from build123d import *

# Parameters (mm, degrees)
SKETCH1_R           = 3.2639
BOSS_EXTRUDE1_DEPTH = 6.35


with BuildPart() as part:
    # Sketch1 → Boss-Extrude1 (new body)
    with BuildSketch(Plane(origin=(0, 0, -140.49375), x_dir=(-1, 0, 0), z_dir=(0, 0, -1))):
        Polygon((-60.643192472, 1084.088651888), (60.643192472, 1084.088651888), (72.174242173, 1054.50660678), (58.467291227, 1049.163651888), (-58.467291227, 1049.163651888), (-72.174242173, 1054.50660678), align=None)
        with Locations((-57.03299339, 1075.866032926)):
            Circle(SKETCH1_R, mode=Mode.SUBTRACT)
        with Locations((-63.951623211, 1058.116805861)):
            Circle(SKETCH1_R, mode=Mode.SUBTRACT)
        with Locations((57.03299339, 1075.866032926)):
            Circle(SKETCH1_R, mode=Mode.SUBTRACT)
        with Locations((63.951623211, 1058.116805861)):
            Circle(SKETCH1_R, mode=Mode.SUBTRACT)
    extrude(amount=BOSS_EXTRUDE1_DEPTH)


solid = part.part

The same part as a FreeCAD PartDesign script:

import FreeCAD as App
import Part
import Sketcher
Q = App.Units.Quantity


def add_polygon(sketch, points):
    """Adds a closed chain of lines whose ends are joined by coincident constraints."""
    first, n = sketch.GeometryCount, len(points)
    for a, b in zip(points, points[1:] + points[:1]):
        sketch.addGeometry(Part.LineSegment(App.Vector(*a, 0), App.Vector(*b, 0)), False)
    for i in range(n):
        sketch.addConstraint(Sketcher.Constraint("Coincident", first + i, 2, first + (i + 1) % n, 1))

doc = App.newDocument("Part")
body = doc.addObject("PartDesign::Body", "Body")

sketch1 = doc.addObject("Sketcher::SketchObject", "Sketch")
body.addObject(sketch1)
sketch1.AttachmentSupport = (doc.XY_Plane, [""])
sketch1.MapMode = "FlatFace"
sketch1.AttachmentOffset = App.Placement(App.Vector(0, 0, -5.53125 * 25.4), App.Rotation())
add_polygon(sketch1, [(-60.6, 1084.1), (60.6, 1084.1), (72.2, 1054.5), (58.5, 1049.2), (-58.5, 1049.2), (-72.2, 1054.5)])
sketch1.addGeometry(Part.Circle(App.Vector(-64, 1058.1, 0), App.Vector(0, 0, 1), 3.3), False)
sketch1.addGeometry(Part.Circle(App.Vector(64, 1058.1, 0), App.Vector(0, 0, 1), 3.3), False)
sketch1.addGeometry(Part.Circle(App.Vector(-57, 1075.9, 0), App.Vector(0, 0, 1), 3.3), False)
sketch1.addGeometry(Part.Circle(App.Vector(57, 1075.9, 0), App.Vector(0, 0, 1), 3.3), False)
sketch1.addConstraint(Sketcher.Constraint("Horizontal", 0))
sketch1.addConstraint(Sketcher.Constraint("Horizontal", 3))
sketch1.addConstraint(Sketcher.Constraint("Equal", 6, 7))
sketch1.addConstraint(Sketcher.Constraint("Equal", 7, 8))
sketch1.addConstraint(Sketcher.Constraint("Equal", 8, 9))
sketch1.addConstraint(Sketcher.Constraint("Symmetric", 6, 3, 7, 3, -2))
sketch1.addConstraint(Sketcher.Constraint("Symmetric", 8, 3, 9, 3, -2))
sketch1.addConstraint(Sketcher.Constraint("Symmetric", 1, 2, 4, 2, -2))
sketch1.addConstraint(Sketcher.Constraint("Perpendicular", 1, 2))
sketch1.addConstraint(Sketcher.Constraint("Perpendicular", 4, 5))
sketch1.addConstraint(Sketcher.Constraint("Equal", 2, 4))
sketch1.addConstraint(Sketcher.Constraint("Diameter", 6, Q("0.257 in")))
sketch1.addConstraint(Sketcher.Constraint("Distance", 1, Q("1.25 in")))
sketch1.addConstraint(Sketcher.Constraint("DistanceY", 2, 2, 0, 2, Q("1.375 in")))
sketch1.addConstraint(Sketcher.Constraint("DistanceX", 9, 3, 0, 2, Q("3.610199 mm")))
sketch1.addConstraint(Sketcher.Constraint("DistanceY", 1, 2, 7, 3, Q("3.610199 mm")))
sketch1.addConstraint(Sketcher.Constraint("DistanceX", 2, 2, 0, 2, Q("2.175901 mm")))
sketch1.addConstraint(Sketcher.Constraint("DistanceX", 0, 1, 0, 2, Q("121.286385 mm")))
sketch1.addConstraint(Sketcher.Constraint("DistanceY", -1, 1, 0, 2, Q("1084.088652 mm")))
sketch1.addConstraint(Sketcher.Constraint("DistanceX", 6, 3, 8, 3, Q("6.91863 mm")))
sketch1.addConstraint(Sketcher.Constraint("DistanceY", 9, 3, 0, 2, Q("8.222619 mm")))
pad1 = doc.addObject("PartDesign::Pad", "Pad")
body.addObject(pad1)
pad1.Profile = sketch1
pad1.Length = Q("0.25 in")
pad1.Reversed = True

doc.recompute()
